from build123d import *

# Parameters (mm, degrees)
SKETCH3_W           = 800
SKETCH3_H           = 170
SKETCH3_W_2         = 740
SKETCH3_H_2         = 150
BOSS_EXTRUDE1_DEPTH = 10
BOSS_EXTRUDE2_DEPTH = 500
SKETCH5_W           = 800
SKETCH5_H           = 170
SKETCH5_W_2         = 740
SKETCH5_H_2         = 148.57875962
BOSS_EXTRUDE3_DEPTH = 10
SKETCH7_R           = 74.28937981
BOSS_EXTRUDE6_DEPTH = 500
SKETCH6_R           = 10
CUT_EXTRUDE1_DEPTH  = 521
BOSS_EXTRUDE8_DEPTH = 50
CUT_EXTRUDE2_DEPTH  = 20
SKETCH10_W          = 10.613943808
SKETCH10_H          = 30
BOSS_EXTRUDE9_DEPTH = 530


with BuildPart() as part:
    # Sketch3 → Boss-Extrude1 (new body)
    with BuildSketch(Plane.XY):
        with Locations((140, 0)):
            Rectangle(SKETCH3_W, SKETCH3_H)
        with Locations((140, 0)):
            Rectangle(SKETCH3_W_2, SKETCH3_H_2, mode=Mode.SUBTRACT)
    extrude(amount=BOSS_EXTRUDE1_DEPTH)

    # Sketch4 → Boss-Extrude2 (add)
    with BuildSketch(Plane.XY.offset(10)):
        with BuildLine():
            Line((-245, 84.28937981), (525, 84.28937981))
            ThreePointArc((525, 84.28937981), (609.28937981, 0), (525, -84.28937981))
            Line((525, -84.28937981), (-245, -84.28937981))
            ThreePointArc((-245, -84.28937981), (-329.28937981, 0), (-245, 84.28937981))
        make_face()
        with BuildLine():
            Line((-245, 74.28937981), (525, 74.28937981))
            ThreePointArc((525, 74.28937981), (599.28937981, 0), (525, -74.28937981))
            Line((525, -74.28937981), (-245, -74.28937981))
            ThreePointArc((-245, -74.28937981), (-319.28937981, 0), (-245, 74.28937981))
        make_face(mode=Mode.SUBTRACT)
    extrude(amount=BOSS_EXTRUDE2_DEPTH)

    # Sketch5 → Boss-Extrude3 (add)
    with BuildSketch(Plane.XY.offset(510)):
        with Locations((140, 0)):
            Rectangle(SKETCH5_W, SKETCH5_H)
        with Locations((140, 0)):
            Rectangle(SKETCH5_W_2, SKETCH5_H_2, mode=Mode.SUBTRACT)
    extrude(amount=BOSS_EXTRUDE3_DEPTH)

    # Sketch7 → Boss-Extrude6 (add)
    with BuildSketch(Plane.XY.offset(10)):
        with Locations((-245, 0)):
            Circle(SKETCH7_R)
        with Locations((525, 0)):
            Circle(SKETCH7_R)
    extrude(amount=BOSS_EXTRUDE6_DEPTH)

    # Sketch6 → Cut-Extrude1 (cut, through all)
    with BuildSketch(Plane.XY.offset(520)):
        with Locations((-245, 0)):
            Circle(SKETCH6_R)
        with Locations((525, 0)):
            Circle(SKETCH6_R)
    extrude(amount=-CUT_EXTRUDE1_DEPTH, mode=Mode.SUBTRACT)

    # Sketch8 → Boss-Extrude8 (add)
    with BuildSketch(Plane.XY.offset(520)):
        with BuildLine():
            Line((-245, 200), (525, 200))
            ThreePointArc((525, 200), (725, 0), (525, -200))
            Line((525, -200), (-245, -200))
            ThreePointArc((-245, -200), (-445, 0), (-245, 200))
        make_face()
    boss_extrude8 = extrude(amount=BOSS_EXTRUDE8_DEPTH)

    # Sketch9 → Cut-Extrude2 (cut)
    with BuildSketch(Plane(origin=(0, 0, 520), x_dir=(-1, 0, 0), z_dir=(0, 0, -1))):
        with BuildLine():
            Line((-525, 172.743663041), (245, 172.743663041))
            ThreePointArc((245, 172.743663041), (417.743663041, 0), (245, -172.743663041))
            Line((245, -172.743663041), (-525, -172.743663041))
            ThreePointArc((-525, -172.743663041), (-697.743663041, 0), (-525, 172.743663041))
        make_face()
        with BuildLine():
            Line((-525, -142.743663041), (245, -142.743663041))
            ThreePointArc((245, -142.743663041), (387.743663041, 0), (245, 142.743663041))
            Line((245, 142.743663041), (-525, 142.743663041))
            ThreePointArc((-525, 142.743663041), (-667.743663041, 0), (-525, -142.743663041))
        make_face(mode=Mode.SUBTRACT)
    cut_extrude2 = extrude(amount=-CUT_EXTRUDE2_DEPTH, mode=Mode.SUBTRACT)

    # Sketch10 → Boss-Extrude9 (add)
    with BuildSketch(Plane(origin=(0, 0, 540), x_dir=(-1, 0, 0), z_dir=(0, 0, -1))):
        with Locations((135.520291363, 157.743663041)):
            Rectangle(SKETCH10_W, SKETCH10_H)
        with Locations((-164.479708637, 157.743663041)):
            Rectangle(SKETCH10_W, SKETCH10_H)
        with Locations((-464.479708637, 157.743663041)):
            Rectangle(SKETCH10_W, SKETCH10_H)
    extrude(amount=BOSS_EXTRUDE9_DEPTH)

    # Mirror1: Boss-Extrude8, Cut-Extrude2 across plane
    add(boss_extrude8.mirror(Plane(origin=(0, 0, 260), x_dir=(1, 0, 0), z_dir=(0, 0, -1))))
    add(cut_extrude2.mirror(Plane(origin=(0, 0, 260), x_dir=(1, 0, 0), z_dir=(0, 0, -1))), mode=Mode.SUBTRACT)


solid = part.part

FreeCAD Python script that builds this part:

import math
import FreeCAD as App
import Part
import Sketcher
from FreeCAD import Vector
Q = App.Units.Quantity


def add_polygon(sketch, points):
    """Adds a closed chain of lines whose ends are joined by coincident constraints."""
    first, n = sketch.GeometryCount, len(points)
    for a, b in zip(points, points[1:] + points[:1]):
        sketch.addGeometry(Part.LineSegment(App.Vector(*a, 0), App.Vector(*b, 0)), False)
    for i in range(n):
        sketch.addConstraint(Sketcher.Constraint("Coincident", first + i, 2, first + (i + 1) % n, 1))

doc = App.newDocument("Part")
body = doc.addObject("PartDesign::Body", "Body")

# Sketch on XY plane
sketch1 = body.newObject("Sketcher::SketchObject", "Sketch")
sketch1.AttachmentSupport = (doc.getObject("XY_Plane"), [""])
sketch1.MapMode = "FlatFace"
add_polygon(sketch1, [(-260, 85), (-260, -85), (540, -85), (540, 85)])  # lines 0-3
add_polygon(sketch1, [(510, -75), (-230, -75), (-230, 75), (510, 75)])  # lines 4-7
sketch1.addConstraint([
    Sketcher.Constraint("Vertical", 0),
    Sketcher.Constraint("Horizontal", 1),
    Sketcher.Constraint("Vertical", 2),
    Sketcher.Constraint("Horizontal", 3),
    Sketcher.Constraint("Horizontal", 4),
    Sketcher.Constraint("Vertical", 5),
    Sketcher.Constraint("Horizontal", 6),
    Sketcher.Constraint("Vertical", 7),
    Sketcher.Constraint("DistanceX", 1, 1, 1, 2, Q("800 mm")),
    Sketcher.Constraint("DistanceX", 4, 2, 4, 1, Q("740 mm")),
    Sketcher.Constraint("DistanceY", 0, 2, 0, 1, Q("170 mm")),
    Sketcher.Constraint("DistanceY", 5, 1, 5, 2, Q("150 mm")),
    Sketcher.Constraint("DistanceX", 0, 2, -1, 1, Q("260 mm")),
    Sketcher.Constraint("DistanceY", 0, 2, -1, 1, Q("85 mm")),
    Sketcher.Constraint("DistanceX", 4, 2, -1, 1, Q("230 mm")),
    Sketcher.Constraint("DistanceY", 4, 2, -1, 1, Q("75 mm")),
])
pad1 = body.newObject("PartDesign::Pad", "Pad")
pad1.Profile = sketch1
pad1.Length = 10

# Sketch on XY plane
sketch2 = body.newObject("Sketcher::SketchObject", "Sketch001")
sketch2.AttachmentSupport = (doc.getObject("XY_Plane"), [""])
sketch2.MapMode = "FlatFace"
sketch2.AttachmentOffset = App.Placement(Vector(0, 0, 10), App.Rotation())
sketch2.addGeometry([
    Part.LineSegment(Vector(525, 84.28938, 0), Vector(-245, 84.28938, 0)),  # 0
    Part.ArcOfCircle(Part.Circle(Vector(-245, 0, 0), Vector(0, 0, 1), 84.28938), math.radians(90), math.radians(270)),  # 1
    Part.LineSegment(Vector(-245, -84.28938, 0), Vector(525, -84.28938, 0)),  # 2
    Part.ArcOfCircle(Part.Circle(Vector(525, 0, 0), Vector(0, 0, 1), 84.28938), math.radians(-90), math.radians(90)),  # 3
    Part.LineSegment(Vector(-245, 74.28938, 0), Vector(525, 74.28938, 0)),  # 4
    Part.ArcOfCircle(Part.Circle(Vector(525, 0, 0), Vector(0, 0, 1), 74.28938), math.radians(-90), math.radians(90)),  # 5
    Part.LineSegment(Vector(525, -74.28938, 0), Vector(-245, -74.28938, 0)),  # 6
    Part.ArcOfCircle(Part.Circle(Vector(-245, 0, 0), Vector(0, 0, 1), 74.28938), math.radians(90), math.radians(270)),  # 7
], False)
sketch2.addConstraint([
    Sketcher.Constraint("Tangent", 0, 2, 1, 1),
    Sketcher.Constraint("Tangent", 1, 2, 2, 1),
    Sketcher.Constraint("Tangent", 2, 2, 3, 1),
    Sketcher.Constraint("Tangent", 3, 2, 0, 1),
    Sketcher.Constraint("Tangent", 4, 2, 5, 2),
    Sketcher.Constraint("Tangent", 5, 1, 6, 1),
    Sketcher.Constraint("Tangent", 6, 2, 7, 2),
    Sketcher.Constraint("Tangent", 7, 1, 4, 1),
    Sketcher.Constraint("Horizontal", 0),
    Sketcher.Constraint("Horizontal", 2),
    Sketcher.Constraint("Horizontal", 4),
    Sketcher.Constraint("Horizontal", 6),
    Sketcher.Constraint("Coincident", 5, 3, 3, 3),
    Sketcher.Constraint("PointOnObject", 1, 3, -1),
    Sketcher.Constraint("Vertical", 7, 3, 0, 2),
    Sketcher.Constraint("DistanceX", 0, 2, 0, 1, Q("770 mm")),
    Sketcher.Constraint("DistanceX", 1, 3, -1, 1, Q("245 mm")),
    Sketcher.Constraint("DistanceY", 4, 2, 3, 2, Q("10 mm")),
    Sketcher.Constraint("Radius", 1, Q("84.28938 mm")),
])
pad2 = body.newObject("PartDesign::Pad", "Pad001")
pad2.Profile = sketch2
pad2.Length = 500

# Sketch on XY plane
sketch3 = body.newObject("Sketcher::SketchObject", "Sketch002")
sketch3.AttachmentSupport = (doc.getObject("XY_Plane"), [""])
sketch3.MapMode = "FlatFace"
sketch3.AttachmentOffset = App.Placement(Vector(0, 0, 510), App.Rotation())
add_polygon(sketch3, [(-260, 85), (-260, -85), (540, -85), (540, 85)])  # lines 0-3
add_polygon(sketch3, [(510, -74.28938), (-230, -74.28938), (-230, 74.28938), (510, 74.28938)])  # lines 4-7
sketch3.addConstraint([
    Sketcher.Constraint("Vertical", 0),
    Sketcher.Constraint("Horizontal", 1),
    Sketcher.Constraint("Vertical", 2),
    Sketcher.Constraint("Horizontal", 3),
    Sketcher.Constraint("Horizontal", 4),
    Sketcher.Constraint("Vertical", 5),
    Sketcher.Constraint("Horizontal", 6),
    Sketcher.Constraint("Vertical", 7),
    Sketcher.Constraint("DistanceX", 1, 1, 1, 2, Q("800 mm")),
    Sketcher.Constraint("DistanceX", 4, 2, 4, 1, Q("740 mm")),
    Sketcher.Constraint("DistanceY", 0, 2, 0, 1, Q("170 mm")),
    Sketcher.Constraint("DistanceX", 0, 2, -1, 1, Q("260 mm")),
    Sketcher.Constraint("DistanceY", 0, 2, -1, 1, Q("85 mm")),
    Sketcher.Constraint("DistanceX", 4, 2, -1, 1, Q("230 mm")),
    Sketcher.Constraint("DistanceY", 5, 1, 5, 2, Q("148.57876 mm")),
    Sketcher.Constraint("DistanceY", 4, 2, -1, 1, Q("74.28938 mm")),
])
pad3 = body.newObject("PartDesign::Pad", "Pad002")
pad3.Profile = sketch3
pad3.Length = 10

# Sketch on XY plane
sketch4 = body.newObject("Sketcher::SketchObject", "Sketch003")
sketch4.AttachmentSupport = (doc.getObject("XY_Plane"), [""])
sketch4.MapMode = "FlatFace"
sketch4.AttachmentOffset = App.Placement(Vector(0, 0, 10), App.Rotation())
sketch4.addGeometry([
    Part.Circle(Vector(-245, 0, 0), Vector(0, 0, 1), 74.28938),
    Part.Circle(Vector(525, 0, 0), Vector(0, 0, 1), 74.28938),
], False)
sketch4.addConstraint([
    Sketcher.Constraint("Equal", 0, 1),
    Sketcher.Constraint("PointOnObject", 0, 3, -1),
    Sketcher.Constraint("PointOnObject", 1, 3, -1),
    Sketcher.Constraint("DistanceX", 0, 3, -1, 1, Q("245 mm")),
    Sketcher.Constraint("DistanceX", -1, 1, 1, 3, Q("525 mm")),
    Sketcher.Constraint("Diameter", 0, Q("148.57876 mm")),
])
pad4 = body.newObject("PartDesign::Pad", "Pad003")
pad4.Profile = sketch4
pad4.Length = 500

# Sketch on XY plane
sketch5 = body.newObject("Sketcher::SketchObject", "Sketch004")
sketch5.AttachmentSupport = (doc.getObject("XY_Plane"), [""])
sketch5.MapMode = "FlatFace"
sketch5.AttachmentOffset = App.Placement(Vector(0, 0, 520), App.Rotation())
sketch5.addGeometry([
    Part.Circle(Vector(-245, 0, 0), Vector(0, 0, 1), 10),
    Part.Circle(Vector(525, 0, 0), Vector(0, 0, 1), 10),
], False)
sketch5.addConstraint([
    Sketcher.Constraint("Equal", 0, 1),
    Sketcher.Constraint("PointOnObject", 0, 3, -1),
    Sketcher.Constraint("PointOnObject", 1, 3, -1),
    Sketcher.Constraint("Diameter", 0, Q("20 mm")),
    Sketcher.Constraint("DistanceX", 0, 3, -1, 1, Q("245 mm")),
    Sketcher.Constraint("DistanceX", -1, 1, 1, 3, Q("525 mm")),
])
pocket1 = body.newObject("PartDesign::Pocket", "Pocket")
pocket1.Profile = sketch5
pocket1.Type = "ThroughAll"

# Sketch on XY plane
sketch6 = body.newObject("Sketcher::SketchObject", "Sketch005")
sketch6.AttachmentSupport = (doc.getObject("XY_Plane"), [""])
sketch6.MapMode = "FlatFace"
sketch6.AttachmentOffset = App.Placement(Vector(0, 0, 520), App.Rotation())
sketch6.addGeometry([
    Part.LineSegment(Vector(525, 200, 0), Vector(-245, 200, 0)),
    Part.ArcOfCircle(Part.Circle(Vector(-245, 0, 0), Vector(0, 0, 1), 200), math.radians(90), math.radians(270)),
    Part.LineSegment(Vector(-245, -200, 0), Vector(525, -200, 0)),
    Part.ArcOfCircle(Part.Circle(Vector(525, 0, 0), Vector(0, 0, 1), 200), math.radians(-90), math.radians(90)),
], False)
sketch6.addConstraint([
    Sketcher.Constraint("Tangent", 0, 2, 1, 1),
    Sketcher.Constraint("Tangent", 1, 2, 2, 1),
    Sketcher.Constraint("Tangent", 2, 2, 3, 1),
    Sketcher.Constraint("Tangent", 3, 2, 0, 1),
    Sketcher.Constraint("Horizontal", 0),
    Sketcher.Constraint("Horizontal", 2),
    Sketcher.Constraint("PointOnObject", 1, 3, -1),
    Sketcher.Constraint("Radius", 1, Q("200 mm")),
    Sketcher.Constraint("DistanceX", 0, 2, 0, 1, Q("770 mm")),
    Sketcher.Constraint("DistanceX", 1, 3, -1, 1, Q("245 mm")),
])
pad5 = body.newObject("PartDesign::Pad", "Pad004")
pad5.Profile = sketch6
pad5.Length = 50

# Sketch on XY plane
sketch7 = body.newObject("Sketcher::SketchObject", "Sketch006")
sketch7.AttachmentSupport = (doc.getObject("XY_Plane"), [""])
sketch7.MapMode = "FlatFace"
sketch7.AttachmentOffset = App.Placement(Vector(0, 0, 520), App.Rotation())
sketch7.addGeometry([
    Part.LineSegment(Vector(-245, 172.743663, 0), Vector(525, 172.743663, 0)),  # 0
    Part.ArcOfCircle(Part.Circle(Vector(525, 0, 0), Vector(0, 0, 1), 172.743663), math.radians(-90), math.radians(90)),  # 1
    Part.LineSegment(Vector(525, -172.743663, 0), Vector(-245, -172.743663, 0)),  # 2
    Part.ArcOfCircle(Part.Circle(Vector(-245, 0, 0), Vector(0, 0, 1), 172.743663), math.radians(90), math.radians(270)),  # 3
    Part.ArcOfCircle(Part.Circle(Vector(525, 0, 0), Vector(0, 0, 1), 142.743663), math.radians(-90), math.radians(90)),  # 4
    Part.LineSegment(Vector(525, 142.743663, 0), Vector(-245, 142.743663, 0)),  # 5
    Part.ArcOfCircle(Part.Circle(Vector(-245, 0, 0), Vector(0, 0, 1), 142.743663), math.radians(90), math.radians(270)),  # 6
    Part.LineSegment(Vector(-245, -142.743663, 0), Vector(525, -142.743663, 0)),  # 7
], False)
sketch7.addConstraint([
    Sketcher.Constraint("Tangent", 0, 2, 1, 2),
    Sketcher.Constraint("Tangent", 1, 1, 2, 1),
    Sketcher.Constraint("Tangent", 2, 2, 3, 2),
    Sketcher.Constraint("Tangent", 3, 1, 0, 1),
    Sketcher.Constraint("Tangent", 4, 2, 5, 1),
    Sketcher.Constraint("Tangent", 5, 2, 6, 1),
    Sketcher.Constraint("Tangent", 6, 2, 7, 1),
    Sketcher.Constraint("Tangent", 7, 2, 4, 1),
    Sketcher.Constraint("Horizontal", 0),
    Sketcher.Constraint("Horizontal", 2),
    Sketcher.Constraint("Horizontal", 5),
    Sketcher.Constraint("Horizontal", 7),
    Sketcher.Constraint("Coincident", 4, 3, 1, 3),
    Sketcher.Constraint("PointOnObject", 1, 3, -1),
    Sketcher.Constraint("Vertical", 6, 3, 2, 2),
    Sketcher.Constraint("DistanceX", 0, 1, 0, 2, Q("770 mm")),
    Sketcher.Constraint("DistanceX", -1, 1, 1, 3, Q("525 mm")),
    Sketcher.Constraint("DistanceY", 4, 2, 0, 2, Q("30 mm")),
    Sketcher.Constraint("Radius", 1, Q("172.743663 mm")),
])
pocket2 = body.newObject("PartDesign::Pocket", "Pocket001")
pocket2.Profile = sketch7
pocket2.Length = 20
pocket2.Reversed = True

# Sketch on XY plane
sketch8 = body.newObject("Sketcher::SketchObject", "Sketch007")
sketch8.AttachmentSupport = (doc.getObject("XY_Plane"), [""])
sketch8.MapMode = "FlatFace"
sketch8.AttachmentOffset = App.Placement(Vector(0, 0, 540), App.Rotation())
add_polygon(sketch8, [(-130.213319, 172.743663), (-130.213319, 142.743663), (-140.827263, 142.743663), (-140.827263, 172.743663)])  # lines 0-3
add_polygon(sketch8, [(169.786681, 172.743663), (169.786681, 142.743663), (159.172737, 142.743663), (159.172737, 172.743663)])  # lines 4-7
add_polygon(sketch8, [(469.786681, 172.743663), (469.786681, 142.743663), (459.172737, 142.743663), (459.172737, 172.743663)])  # lines 8-11
sketch8.addConstraint([
    Sketcher.Constraint("Vertical", 0),
    Sketcher.Constraint("Horizontal", 1),
    Sketcher.Constraint("Vertical", 2),
    Sketcher.Constraint("Horizontal", 3),
    Sketcher.Constraint("Vertical", 4),
    Sketcher.Constraint("Horizontal", 5),
    Sketcher.Constraint("Vertical", 6),
    Sketcher.Constraint("Horizontal", 7),
    Sketcher.Constraint("Vertical", 8),
    Sketcher.Constraint("Horizontal", 9),
    Sketcher.Constraint("Vertical", 10),
    Sketcher.Constraint("Horizontal", 11),
    Sketcher.Constraint("Horizontal", 1, 2, 4, 2),
    Sketcher.Constraint("Horizontal", 3, 2, 6, 2),
    Sketcher.Constraint("Horizontal", 5, 2, 8, 2),
    Sketcher.Constraint("Horizontal", 7, 2, 10, 2),
    Sketcher.Constraint("Equal", 3, 5),
    Sketcher.Constraint("Equal", 7, 9),
    Sketcher.Constraint("DistanceY", 0, 2, 0, 1, Q("30 mm")),
    Sketcher.Constraint("DistanceX", 0, 2, 4, 2, Q("300 mm")),
    Sketcher.Constraint("DistanceX", 4, 2, 8, 2, Q("300 mm")),
    Sketcher.Constraint("DistanceX", 1, 2, 1, 1, Q("10.613944 mm")),
    Sketcher.Constraint("DistanceX", 0, 2, -1, 1, Q("130.213319 mm")),
    Sketcher.Constraint("DistanceY", -1, 1, 0, 2, Q("142.743663 mm")),
])
pad6 = body.newObject("PartDesign::Pad", "Pad005")
pad6.Profile = sketch8
pad6.Length = 530
pad6.Reversed = True
doc.recompute()

datumplane = body.newObject("PartDesign::Plane", "DatumPlane")
datumplane.AttachmentSupport = (doc.getObject("XY_Plane"), [""])
datumplane.MapMode = "FlatFace"
datumplane.AttachmentOffset = App.Placement(Vector(0, 0, 260), App.Rotation())
mirrored = body.newObject("PartDesign::Mirrored", "Mirrored")
mirrored.Originals = [pad5, pocket2]
mirrored.MirrorPlane = (datumplane, [""])
body.Tip = mirrored

doc.recompute()
